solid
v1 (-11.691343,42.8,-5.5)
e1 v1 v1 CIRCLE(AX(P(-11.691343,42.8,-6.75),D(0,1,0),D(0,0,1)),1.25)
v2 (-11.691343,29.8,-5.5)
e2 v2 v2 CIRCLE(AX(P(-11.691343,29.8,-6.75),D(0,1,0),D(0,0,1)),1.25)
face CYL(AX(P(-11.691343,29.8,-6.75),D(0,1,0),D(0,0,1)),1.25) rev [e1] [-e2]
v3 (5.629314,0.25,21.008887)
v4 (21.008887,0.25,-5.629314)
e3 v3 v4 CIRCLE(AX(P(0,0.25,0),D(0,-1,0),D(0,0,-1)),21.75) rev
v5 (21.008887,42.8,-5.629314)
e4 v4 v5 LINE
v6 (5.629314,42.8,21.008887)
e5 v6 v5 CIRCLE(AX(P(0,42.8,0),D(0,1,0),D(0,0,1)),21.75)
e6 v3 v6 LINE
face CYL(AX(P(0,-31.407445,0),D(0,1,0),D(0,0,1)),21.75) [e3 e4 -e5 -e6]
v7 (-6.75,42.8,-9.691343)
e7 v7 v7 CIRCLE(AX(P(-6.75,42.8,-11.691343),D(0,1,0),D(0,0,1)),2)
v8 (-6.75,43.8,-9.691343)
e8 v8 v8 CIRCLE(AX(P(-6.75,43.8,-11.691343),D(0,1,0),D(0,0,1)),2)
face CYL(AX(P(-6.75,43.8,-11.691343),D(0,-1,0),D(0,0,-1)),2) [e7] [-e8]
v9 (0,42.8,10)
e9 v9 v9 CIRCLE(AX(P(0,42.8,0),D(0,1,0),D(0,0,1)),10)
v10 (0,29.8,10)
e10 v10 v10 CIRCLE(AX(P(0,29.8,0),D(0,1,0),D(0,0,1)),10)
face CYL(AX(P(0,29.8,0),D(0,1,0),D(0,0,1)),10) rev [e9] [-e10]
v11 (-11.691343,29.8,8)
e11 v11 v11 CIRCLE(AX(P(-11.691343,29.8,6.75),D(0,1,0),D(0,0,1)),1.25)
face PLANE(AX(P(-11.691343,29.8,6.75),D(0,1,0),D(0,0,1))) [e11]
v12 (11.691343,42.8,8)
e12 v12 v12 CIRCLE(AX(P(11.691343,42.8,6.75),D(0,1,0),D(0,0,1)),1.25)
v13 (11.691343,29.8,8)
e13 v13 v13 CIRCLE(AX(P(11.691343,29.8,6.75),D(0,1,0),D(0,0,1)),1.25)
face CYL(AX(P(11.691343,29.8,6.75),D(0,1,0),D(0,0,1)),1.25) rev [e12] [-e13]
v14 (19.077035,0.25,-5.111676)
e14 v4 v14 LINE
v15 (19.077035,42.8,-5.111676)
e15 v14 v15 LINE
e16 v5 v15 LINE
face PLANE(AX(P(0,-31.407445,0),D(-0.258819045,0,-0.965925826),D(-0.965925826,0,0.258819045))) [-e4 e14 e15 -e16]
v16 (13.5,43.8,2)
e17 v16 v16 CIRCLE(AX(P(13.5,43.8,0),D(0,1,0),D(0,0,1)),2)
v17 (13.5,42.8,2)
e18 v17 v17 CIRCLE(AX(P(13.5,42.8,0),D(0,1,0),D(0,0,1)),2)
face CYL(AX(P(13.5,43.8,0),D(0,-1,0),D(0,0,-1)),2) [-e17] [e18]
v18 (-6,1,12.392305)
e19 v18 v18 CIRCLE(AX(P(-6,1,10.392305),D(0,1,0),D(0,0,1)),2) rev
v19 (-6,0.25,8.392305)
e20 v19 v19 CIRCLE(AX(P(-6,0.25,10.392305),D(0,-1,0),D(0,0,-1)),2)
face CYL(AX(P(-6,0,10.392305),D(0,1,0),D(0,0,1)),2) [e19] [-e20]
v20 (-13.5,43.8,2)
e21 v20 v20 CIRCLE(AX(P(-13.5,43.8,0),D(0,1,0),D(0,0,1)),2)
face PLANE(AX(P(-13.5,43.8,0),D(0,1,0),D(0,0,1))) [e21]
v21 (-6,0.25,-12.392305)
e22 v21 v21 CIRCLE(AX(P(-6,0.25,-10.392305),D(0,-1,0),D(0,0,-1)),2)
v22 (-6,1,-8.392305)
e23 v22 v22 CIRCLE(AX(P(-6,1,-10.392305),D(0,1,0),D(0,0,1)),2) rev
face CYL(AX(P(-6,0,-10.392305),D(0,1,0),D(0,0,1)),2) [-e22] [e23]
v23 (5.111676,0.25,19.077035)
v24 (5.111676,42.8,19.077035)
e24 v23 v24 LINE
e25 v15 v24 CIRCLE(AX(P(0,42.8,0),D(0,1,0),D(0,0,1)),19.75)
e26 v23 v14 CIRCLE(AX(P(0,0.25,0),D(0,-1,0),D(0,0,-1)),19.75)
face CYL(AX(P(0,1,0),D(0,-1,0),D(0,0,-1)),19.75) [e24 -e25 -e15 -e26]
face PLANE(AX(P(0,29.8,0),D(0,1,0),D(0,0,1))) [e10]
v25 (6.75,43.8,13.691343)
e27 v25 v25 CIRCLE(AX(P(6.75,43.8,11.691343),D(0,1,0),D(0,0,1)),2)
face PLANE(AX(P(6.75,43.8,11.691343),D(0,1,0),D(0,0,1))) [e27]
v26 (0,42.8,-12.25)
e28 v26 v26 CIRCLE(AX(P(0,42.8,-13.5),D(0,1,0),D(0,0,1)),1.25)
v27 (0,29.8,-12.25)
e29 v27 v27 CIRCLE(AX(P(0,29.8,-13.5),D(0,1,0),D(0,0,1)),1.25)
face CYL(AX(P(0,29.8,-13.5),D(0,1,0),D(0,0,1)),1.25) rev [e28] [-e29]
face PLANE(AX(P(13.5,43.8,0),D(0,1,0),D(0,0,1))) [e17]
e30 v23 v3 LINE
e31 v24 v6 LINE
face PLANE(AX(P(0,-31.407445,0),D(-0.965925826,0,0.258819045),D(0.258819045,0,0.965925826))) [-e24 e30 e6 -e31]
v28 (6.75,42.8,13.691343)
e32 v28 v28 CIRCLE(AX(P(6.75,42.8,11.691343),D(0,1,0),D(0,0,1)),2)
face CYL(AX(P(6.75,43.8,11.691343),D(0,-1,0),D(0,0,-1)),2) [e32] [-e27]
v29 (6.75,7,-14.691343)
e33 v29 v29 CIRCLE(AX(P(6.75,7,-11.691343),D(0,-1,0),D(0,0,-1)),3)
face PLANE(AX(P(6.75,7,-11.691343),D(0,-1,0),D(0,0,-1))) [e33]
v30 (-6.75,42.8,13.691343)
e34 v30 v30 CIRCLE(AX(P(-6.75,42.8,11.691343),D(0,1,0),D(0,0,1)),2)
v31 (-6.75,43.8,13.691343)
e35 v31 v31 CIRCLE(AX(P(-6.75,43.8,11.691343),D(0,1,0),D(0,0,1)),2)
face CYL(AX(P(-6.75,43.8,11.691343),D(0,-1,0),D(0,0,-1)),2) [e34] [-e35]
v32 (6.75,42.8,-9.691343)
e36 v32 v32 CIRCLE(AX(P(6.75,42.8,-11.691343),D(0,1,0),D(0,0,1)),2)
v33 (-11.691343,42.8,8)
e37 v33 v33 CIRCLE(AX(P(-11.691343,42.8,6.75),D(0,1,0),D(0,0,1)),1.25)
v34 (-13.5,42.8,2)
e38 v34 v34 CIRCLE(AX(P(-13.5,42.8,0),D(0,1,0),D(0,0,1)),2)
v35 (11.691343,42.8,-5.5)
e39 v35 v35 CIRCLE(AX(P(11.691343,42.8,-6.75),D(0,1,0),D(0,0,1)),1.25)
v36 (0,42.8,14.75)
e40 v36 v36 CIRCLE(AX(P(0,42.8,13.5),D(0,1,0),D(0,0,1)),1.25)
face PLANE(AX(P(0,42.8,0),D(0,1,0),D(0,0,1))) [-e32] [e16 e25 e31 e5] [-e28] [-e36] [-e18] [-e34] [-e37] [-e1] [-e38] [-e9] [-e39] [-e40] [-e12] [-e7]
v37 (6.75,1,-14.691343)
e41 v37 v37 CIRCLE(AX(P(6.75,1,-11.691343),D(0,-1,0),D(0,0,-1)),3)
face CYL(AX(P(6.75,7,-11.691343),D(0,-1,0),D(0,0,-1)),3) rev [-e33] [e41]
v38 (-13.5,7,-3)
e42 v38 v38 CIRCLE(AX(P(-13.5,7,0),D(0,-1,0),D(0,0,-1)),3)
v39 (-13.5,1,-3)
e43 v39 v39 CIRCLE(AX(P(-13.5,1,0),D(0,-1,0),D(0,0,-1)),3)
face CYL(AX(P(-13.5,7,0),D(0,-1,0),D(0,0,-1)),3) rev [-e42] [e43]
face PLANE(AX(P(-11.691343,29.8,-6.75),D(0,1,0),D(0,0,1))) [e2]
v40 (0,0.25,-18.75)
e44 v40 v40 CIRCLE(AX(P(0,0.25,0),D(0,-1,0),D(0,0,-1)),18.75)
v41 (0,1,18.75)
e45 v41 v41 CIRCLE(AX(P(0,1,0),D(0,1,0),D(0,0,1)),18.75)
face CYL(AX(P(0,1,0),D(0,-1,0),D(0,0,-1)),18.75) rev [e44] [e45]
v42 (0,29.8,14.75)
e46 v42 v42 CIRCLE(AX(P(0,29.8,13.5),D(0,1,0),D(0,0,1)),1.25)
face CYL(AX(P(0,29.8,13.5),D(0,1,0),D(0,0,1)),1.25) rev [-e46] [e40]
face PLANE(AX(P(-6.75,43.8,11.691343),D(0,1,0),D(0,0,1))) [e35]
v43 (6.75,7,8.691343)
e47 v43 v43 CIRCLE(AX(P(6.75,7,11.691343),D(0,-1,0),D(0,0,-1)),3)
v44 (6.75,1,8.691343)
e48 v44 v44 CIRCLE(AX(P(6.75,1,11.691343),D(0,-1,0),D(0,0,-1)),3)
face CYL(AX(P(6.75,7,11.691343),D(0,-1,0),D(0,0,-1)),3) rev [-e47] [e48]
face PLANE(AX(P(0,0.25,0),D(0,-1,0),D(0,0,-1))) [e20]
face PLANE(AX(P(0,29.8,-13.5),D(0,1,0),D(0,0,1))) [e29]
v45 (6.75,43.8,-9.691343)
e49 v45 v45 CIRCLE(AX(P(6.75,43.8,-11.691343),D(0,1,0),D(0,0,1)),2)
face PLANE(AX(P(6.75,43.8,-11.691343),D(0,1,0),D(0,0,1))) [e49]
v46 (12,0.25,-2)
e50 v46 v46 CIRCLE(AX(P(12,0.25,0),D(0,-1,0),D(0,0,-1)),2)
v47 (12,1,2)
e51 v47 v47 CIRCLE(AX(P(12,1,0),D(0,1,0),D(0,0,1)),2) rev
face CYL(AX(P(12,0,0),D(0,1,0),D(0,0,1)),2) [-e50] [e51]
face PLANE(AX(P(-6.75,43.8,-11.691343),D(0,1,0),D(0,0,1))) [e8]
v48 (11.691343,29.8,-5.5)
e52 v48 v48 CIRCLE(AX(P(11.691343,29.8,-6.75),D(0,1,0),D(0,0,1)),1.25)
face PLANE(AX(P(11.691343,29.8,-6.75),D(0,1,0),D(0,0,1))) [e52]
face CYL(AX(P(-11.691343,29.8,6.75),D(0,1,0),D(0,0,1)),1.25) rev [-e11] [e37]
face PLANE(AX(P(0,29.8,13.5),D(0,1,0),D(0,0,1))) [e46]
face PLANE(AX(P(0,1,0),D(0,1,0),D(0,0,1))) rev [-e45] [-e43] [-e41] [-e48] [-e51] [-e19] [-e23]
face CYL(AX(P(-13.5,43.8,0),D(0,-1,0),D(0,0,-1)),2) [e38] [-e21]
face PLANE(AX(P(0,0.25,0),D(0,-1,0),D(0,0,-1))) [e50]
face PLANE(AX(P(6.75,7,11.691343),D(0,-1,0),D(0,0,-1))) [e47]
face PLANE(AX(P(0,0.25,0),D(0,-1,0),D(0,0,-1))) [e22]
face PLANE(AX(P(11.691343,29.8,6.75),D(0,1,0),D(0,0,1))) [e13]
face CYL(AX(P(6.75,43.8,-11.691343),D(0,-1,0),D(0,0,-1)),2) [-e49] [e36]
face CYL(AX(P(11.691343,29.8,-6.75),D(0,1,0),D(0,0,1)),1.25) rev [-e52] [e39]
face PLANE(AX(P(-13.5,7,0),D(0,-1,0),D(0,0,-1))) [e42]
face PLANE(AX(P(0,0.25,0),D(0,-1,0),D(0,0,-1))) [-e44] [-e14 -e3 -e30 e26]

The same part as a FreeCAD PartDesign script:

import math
import FreeCAD as App
import Part
import Sketcher

V = App.Vector
Q = App.Units.Quantity

doc = App.newDocument("Part")
params = doc.addObject("Spreadsheet::Sheet", "Params")
for row, (alias, value) in enumerate([
    ("sketch1_diameter", "39.5 mm"),
    ("sketch1_diameter2", "37.5 mm"),
    ("pad1_length", "1 mm"),
    ("sketch2_diameter", "39.5 mm"),
    ("pad2_length", "41.8 mm"),
    ("sketch3_diameter", "20 mm"),
    ("sketch3_diameter2", "2.5 mm"),
    ("pocket1_length", "13 mm"),
    ("sketch4_diameter", "4 mm"),
    ("pad3_length", "1 mm"),
    ("sketch5_diameter", "4 mm"),
    ("pad4_length", "1 mm"),
    ("sketch6_diameter", "6 mm"),
    ("pocket2_length", "6 mm"),
    ("sketch7_radius", "21.75 mm"),
    ("sketch7_radius2", "19.75 mm"),
    ("pad5_length", "42.8 mm"),
    ("sketch8_diameter", "50 mm"),
    ("pocket3_length", "0.25 mm"),
], start=1):
    params.set(f"A{row}", alias)
    params.set(f"B{row}", "=" + value)
    params.setAlias(f"B{row}", alias)

body = doc.addObject("PartDesign::Body", "Body")

# Sketch on XZ plane
sketch1 = body.newObject("Sketcher::SketchObject", "Sketch")
sketch1.AttachmentSupport = (doc.getObject("XZ_Plane"), [""])
sketch1.MapMode = "FlatFace"
sketch1.addGeometry(Part.Circle(V(0, 0, 0), V(0, 0, 1), 20), False)
sketch1.addGeometry(Part.Circle(V(0, 0, 0), V(0, 0, 1), 19), False)
sketch1.addConstraint(Sketcher.Constraint("Coincident", 0, 3, -1, 1))
sketch1.addConstraint(Sketcher.Constraint("Coincident", 1, 3, -1, 1))
sketch1.addConstraint(Sketcher.Constraint("Diameter", 0, 39.5))
sketch1.addConstraint(Sketcher.Constraint("Diameter", 1, 37.5))
sketch1.setExpression("Constraints[2]", "Params.sketch1_diameter")
sketch1.setExpression("Constraints[3]", "Params.sketch1_diameter2")
pad1 = body.newObject("PartDesign::Pad", "Pad")
pad1.Profile = sketch1
pad1.setExpression("Length", "Params.pad1_length")
pad1.Reversed = True

# Sketch on XZ plane
sketch2 = body.newObject("Sketcher::SketchObject", "Sketch001")
sketch2.AttachmentSupport = (doc.getObject("XZ_Plane"), [""])
sketch2.MapMode = "FlatFace"
sketch2.AttachmentOffset = App.Placement(V(0, 0, -1), App.Rotation())
sketch2.addGeometry(Part.Circle(V(0, 0, 0), V(0, 0, 1), 20), False)
sketch2.addConstraint(Sketcher.Constraint("Coincident", 0, 3, -1, 1))
sketch2.addConstraint(Sketcher.Constraint("Diameter", 0, 39.5))
sketch2.setExpression("Constraints[1]", "Params.sketch2_diameter")
pad2 = body.newObject("PartDesign::Pad", "Pad001")
pad2.Profile = sketch2
pad2.setExpression("Length", "Params.pad2_length")
pad2.Reversed = True

# Sketch on XZ plane
sketch3 = body.newObject("Sketcher::SketchObject", "Sketch002")
sketch3.AttachmentSupport = (doc.getObject("XZ_Plane"), [""])
sketch3.MapMode = "FlatFace"
sketch3.AttachmentOffset = App.Placement(V(0, 0, -42.8), App.Rotation())
sketch3.addGeometry(Part.Circle(V(0, 0, 0), V(0, 0, 1), 10), False)
sketch3.addGeometry(Part.Circle(V(0, -13.5, 0), V(0, 0, 1), 1.2), False)
sketch3.addGeometry(Part.Circle(V(11.7, -6.8, 0), V(0, 0, 1), 1.2), False)
sketch3.addGeometry(Part.Circle(V(11.7, 6.8, 0), V(0, 0, 1), 1.2), False)
sketch3.addGeometry(Part.Circle(V(0, 13.5, 0), V(0, 0, 1), 1.2), False)
sketch3.addGeometry(Part.Circle(V(-11.7, 6.8, 0), V(0, 0, 1), 1.2), False)
sketch3.addGeometry(Part.Circle(V(-11.7, -6.8, 0), V(0, 0, 1), 1.2), False)
sketch3.addConstraint(Sketcher.Constraint("Coincident", 0, 3, -1, 1))
sketch3.addConstraint(Sketcher.Constraint("Equal", 1, 2))
sketch3.addConstraint(Sketcher.Constraint("Equal", 2, 3))
sketch3.addConstraint(Sketcher.Constraint("Equal", 3, 4))
sketch3.addConstraint(Sketcher.Constraint("Equal", 4, 5))
sketch3.addConstraint(Sketcher.Constraint("Equal", 5, 6))
sketch3.addConstraint(Sketcher.Constraint("Symmetric", 1, 3, 4, 3, -1, 1))
sketch3.addConstraint(Sketcher.Constraint("Symmetric", 2, 3, 5, 3, -1, 1))
sketch3.addConstraint(Sketcher.Constraint("Symmetric", 3, 3, 6, 3, -1, 1))
sketch3.addConstraint(Sketcher.Constraint("Symmetric", 3, 3, 5, 3, -2))
sketch3.addConstraint(Sketcher.Constraint("PointOnObject", 1, 3, -2))
sketch3.addConstraint(Sketcher.Constraint("Diameter", 0, 20.0))
sketch3.addConstraint(Sketcher.Constraint("Diameter", 1, 2.5))
sketch3.addConstraint(Sketcher.Constraint("DistanceY", 1, 3, 4, 3, 27.0))
sketch3.addConstraint(Sketcher.Constraint("DistanceY", 2, 3, 3, 3, 13.5))
sketch3.addConstraint(Sketcher.Constraint("DistanceX", -1, 1, 2, 3, 11.691343))
sketch3.setExpression("Constraints[11]", "Params.sketch3_diameter")
sketch3.setExpression("Constraints[12]", "Params.sketch3_diameter2")
pocket1 = body.newObject("PartDesign::Pocket", "Pocket")
pocket1.Profile = sketch3
pocket1.setExpression("Length", "Params.pocket1_length")
pocket1.Reversed = True

# Sketch on XZ plane
sketch4 = body.newObject("Sketcher::SketchObject", "Sketch003")
sketch4.AttachmentSupport = (doc.getObject("XZ_Plane"), [""])
sketch4.MapMode = "FlatFace"
sketch4.AttachmentOffset = App.Placement(V(0, 0, -1), App.Rotation())
sketch4.addGeometry(Part.Circle(V(12, 0, 0), V(0, 0, 1), 2), False)
sketch4.addGeometry(Part.Circle(V(-6, -10.4, 0), V(0, 0, 1), 2), False)
sketch4.addGeometry(Part.Circle(V(-6, 10.4, 0), V(0, 0, 1), 2), False)
sketch4.addConstraint(Sketcher.Constraint("Equal", 0, 1))
sketch4.addConstraint(Sketcher.Constraint("Equal", 1, 2))
sketch4.addConstraint(Sketcher.Constraint("Symmetric", 1, 3, 2, 3, -1))
sketch4.addConstraint(Sketcher.Constraint("PointOnObject", 0, 3, -1))
sketch4.addConstraint(Sketcher.Constraint("Diameter", 0, 4.0))
sketch4.addConstraint(Sketcher.Constraint("DistanceX", -1, 1, 0, 3, 12.0))
sketch4.addConstraint(Sketcher.Constraint("DistanceX", 1, 3, -1, 1, 6.0))
sketch4.addConstraint(Sketcher.Constraint("DistanceY", 1, 3, 2, 3, 20.78461))
sketch4.setExpression("Constraints[4]", "Params.sketch4_diameter")
pad3 = body.newObject("PartDesign::Pad", "Pad002")
pad3.Profile = sketch4
pad3.setExpression("Length", "Params.pad3_length")

# Sketch on XZ plane
sketch5 = body.newObject("Sketcher::SketchObject", "Sketch004")
sketch5.AttachmentSupport = (doc.getObject("XZ_Plane"), [""])
sketch5.MapMode = "FlatFace"
sketch5.AttachmentOffset = App.Placement(V(0, 0, -42.8), App.Rotation())
sketch5.addGeometry(Part.Circle(V(13.5, 0, 0), V(0, 0, 1), 2), False)
sketch5.addGeometry(Part.Circle(V(6.8, 11.7, 0), V(0, 0, 1), 2), False)
sketch5.addGeometry(Part.Circle(V(-6.8, 11.7, 0), V(0, 0, 1), 2), False)
sketch5.addGeometry(Part.Circle(V(-13.5, 0, 0), V(0, 0, 1), 2), False)
sketch5.addGeometry(Part.Circle(V(-6.8, -11.7, 0), V(0, 0, 1), 2), False)
sketch5.addGeometry(Part.Circle(V(6.8, -11.7, 0), V(0, 0, 1), 2), False)
sketch5.addConstraint(Sketcher.Constraint("Equal", 0, 1))
sketch5.addConstraint(Sketcher.Constraint("Equal", 1, 2))
sketch5.addConstraint(Sketcher.Constraint("Equal", 2, 3))
sketch5.addConstraint(Sketcher.Constraint("Equal", 3, 4))
sketch5.addConstraint(Sketcher.Constraint("Equal", 4, 5))
sketch5.addConstraint(Sketcher.Constraint("Symmetric", 0, 3, 3, 3, -1, 1))
sketch5.addConstraint(Sketcher.Constraint("Symmetric", 1, 3, 4, 3, -1, 1))
sketch5.addConstraint(Sketcher.Constraint("Symmetric", 2, 3, 5, 3, -1, 1))
sketch5.addConstraint(Sketcher.Constraint("Symmetric", 1, 3, 2, 3, -2))
sketch5.addConstraint(Sketcher.Constraint("PointOnObject", 0, 3, -1))
sketch5.addConstraint(Sketcher.Constraint("Diameter", 0, 4.0))
sketch5.addConstraint(Sketcher.Constraint("DistanceX", 3, 3, 0, 3, 27.0))
sketch5.addConstraint(Sketcher.Constraint("DistanceX", 2, 3, 1, 3, 13.5))
sketch5.addConstraint(Sketcher.Constraint("DistanceY", -1, 1, 1, 3, 11.691343))
sketch5.setExpression("Constraints[10]", "Params.sketch5_diameter")
pad4 = body.newObject("PartDesign::Pad", "Pad003")
pad4.Profile = sketch5
pad4.setExpression("Length", "Params.pad4_length")
pad4.Reversed = True

# Sketch on XZ plane
sketch6 = body.newObject("Sketcher::SketchObject", "Sketch005")
sketch6.AttachmentSupport = (doc.getObject("XZ_Plane"), [""])
sketch6.MapMode = "FlatFace"
sketch6.AttachmentOffset = App.Placement(V(0, 0, -1), App.Rotation())
sketch6.addGeometry(Part.Circle(V(-13.5, 0, 0), V(0, 0, 1), 3), False)
sketch6.addGeometry(Part.Circle(V(6.8, 11.7, 0), V(0, 0, 1), 3), False)
sketch6.addGeometry(Part.Circle(V(6.8, -11.7, 0), V(0, 0, 1), 3), False)
sketch6.addConstraint(Sketcher.Constraint("Equal", 0, 1))
sketch6.addConstraint(Sketcher.Constraint("Equal", 1, 2))
sketch6.addConstraint(Sketcher.Constraint("Symmetric", 1, 3, 2, 3, -1))
sketch6.addConstraint(Sketcher.Constraint("PointOnObject", 0, 3, -1))
sketch6.addConstraint(Sketcher.Constraint("Diameter", 0, 6.0))
sketch6.addConstraint(Sketcher.Constraint("DistanceX", 0, 3, -1, 1, 13.5))
sketch6.addConstraint(Sketcher.Constraint("DistanceX", -1, 1, 1, 3, 6.75))
sketch6.addConstraint(Sketcher.Constraint("DistanceY", -1, 1, 1, 3, 11.691343))
sketch6.setExpression("Constraints[4]", "Params.sketch6_diameter")
pocket2 = body.newObject("PartDesign::Pocket", "Pocket001")
pocket2.Profile = sketch6
pocket2.setExpression("Length", "Params.pocket2_length")

# Sketch on XZ plane
sketch7 = body.newObject("Sketcher::SketchObject", "Sketch006")
sketch7.AttachmentSupport = (doc.getObject("XZ_Plane"), [""])
sketch7.MapMode = "FlatFace"
sketch7.addGeometry(Part.ArcOfCircle(Part.Circle(V(0, 0, 0), V(0, 0, 1), 21.7), math.radians(-15), math.radians(0)), False)
sketch7.addGeometry(Part.LineSegment(V(21, -5.6, 0), V(19.1, -5.1, 0)), False)
sketch7.addGeometry(Part.ArcOfCircle(Part.Circle(V(0, 0, 0), V(0, 0, 1), 19.8), math.radians(-15), math.radians(0)), False)
sketch7.addGeometry(Part.ArcOfCircle(Part.Circle(V(0, 0, 0), V(0, 0, 1), 19.7), math.radians(0), math.radians(75)), False)
sketch7.addGeometry(Part.LineSegment(V(5.1, 19.1, 0), V(5.6, 21, 0)), False)
sketch7.addGeometry(Part.ArcOfCircle(Part.Circle(V(0, 0, 0), V(0, 0, 1), 21.8), math.radians(0), math.radians(75)), False)
sketch7.addConstraint(Sketcher.Constraint("Coincident", 0, 1, 1, 1))
sketch7.addConstraint(Sketcher.Constraint("Coincident", 1, 2, 2, 1))
sketch7.addConstraint(Sketcher.Constraint("Tangent", 2, 2, 3, 1))
sketch7.addConstraint(Sketcher.Constraint("Coincident", 3, 2, 4, 1))
sketch7.addConstraint(Sketcher.Constraint("Coincident", 4, 2, 5, 2))
sketch7.addConstraint(Sketcher.Constraint("Tangent", 5, 1, 0, 2))
sketch7.addConstraint(Sketcher.Constraint("Coincident", 0, 3, -1, 1))
sketch7.addConstraint(Sketcher.Constraint("Coincident", 2, 3, -1, 1))
sketch7.addConstraint(Sketcher.Constraint("Equal", 2, 3))
sketch7.addConstraint(Sketcher.Constraint("Equal", 0, 5))
sketch7.addConstraint(Sketcher.Constraint("PointOnObject", 2, 2, -1))
sketch7.addConstraint(Sketcher.Constraint("PointOnObject", 5, 1, -1))
sketch7.addConstraint(Sketcher.Constraint("Perpendicular", 1, 4))
sketch7.addConstraint(Sketcher.Constraint("Angle", 1, Q("165 deg")))
sketch7.addConstraint(Sketcher.Constraint("Radius", 0, 21.75))
sketch7.addConstraint(Sketcher.Constraint("Radius", 2, 19.75))
sketch7.addConstraint(Sketcher.Constraint("DistanceX", -1, 1, 0, 1, 21.008887))
sketch7.addConstraint(Sketcher.Constraint("DistanceX", -1, 1, 3, 2, 5.111676))
sketch7.setExpression("Constraints[14]", "Params.sketch7_radius")
sketch7.setExpression("Constraints[15]", "Params.sketch7_radius2")
pad5 = body.newObject("PartDesign::Pad", "Pad004")
pad5.Profile = sketch7
pad5.setExpression("Length", "Params.pad5_length")
pad5.Reversed = True

# Sketch on XZ plane
sketch8 = body.newObject("Sketcher::SketchObject", "Sketch007")
sketch8.AttachmentSupport = (doc.getObject("XZ_Plane"), [""])
sketch8.MapMode = "FlatFace"
sketch8.addGeometry(Part.Circle(V(0, 0, 0), V(0, 0, 1), 25), False)
sketch8.addConstraint(Sketcher.Constraint("Coincident", 0, 3, -1, 1))
sketch8.addConstraint(Sketcher.Constraint("Diameter", 0, 50.0))
sketch8.setExpression("Constraints[1]", "Params.sketch8_diameter")
pocket3 = body.newObject("PartDesign::Pocket", "Pocket002")
pocket3.Profile = sketch8
pocket3.setExpression("Length", "Params.pocket3_length")

doc.recompute()
